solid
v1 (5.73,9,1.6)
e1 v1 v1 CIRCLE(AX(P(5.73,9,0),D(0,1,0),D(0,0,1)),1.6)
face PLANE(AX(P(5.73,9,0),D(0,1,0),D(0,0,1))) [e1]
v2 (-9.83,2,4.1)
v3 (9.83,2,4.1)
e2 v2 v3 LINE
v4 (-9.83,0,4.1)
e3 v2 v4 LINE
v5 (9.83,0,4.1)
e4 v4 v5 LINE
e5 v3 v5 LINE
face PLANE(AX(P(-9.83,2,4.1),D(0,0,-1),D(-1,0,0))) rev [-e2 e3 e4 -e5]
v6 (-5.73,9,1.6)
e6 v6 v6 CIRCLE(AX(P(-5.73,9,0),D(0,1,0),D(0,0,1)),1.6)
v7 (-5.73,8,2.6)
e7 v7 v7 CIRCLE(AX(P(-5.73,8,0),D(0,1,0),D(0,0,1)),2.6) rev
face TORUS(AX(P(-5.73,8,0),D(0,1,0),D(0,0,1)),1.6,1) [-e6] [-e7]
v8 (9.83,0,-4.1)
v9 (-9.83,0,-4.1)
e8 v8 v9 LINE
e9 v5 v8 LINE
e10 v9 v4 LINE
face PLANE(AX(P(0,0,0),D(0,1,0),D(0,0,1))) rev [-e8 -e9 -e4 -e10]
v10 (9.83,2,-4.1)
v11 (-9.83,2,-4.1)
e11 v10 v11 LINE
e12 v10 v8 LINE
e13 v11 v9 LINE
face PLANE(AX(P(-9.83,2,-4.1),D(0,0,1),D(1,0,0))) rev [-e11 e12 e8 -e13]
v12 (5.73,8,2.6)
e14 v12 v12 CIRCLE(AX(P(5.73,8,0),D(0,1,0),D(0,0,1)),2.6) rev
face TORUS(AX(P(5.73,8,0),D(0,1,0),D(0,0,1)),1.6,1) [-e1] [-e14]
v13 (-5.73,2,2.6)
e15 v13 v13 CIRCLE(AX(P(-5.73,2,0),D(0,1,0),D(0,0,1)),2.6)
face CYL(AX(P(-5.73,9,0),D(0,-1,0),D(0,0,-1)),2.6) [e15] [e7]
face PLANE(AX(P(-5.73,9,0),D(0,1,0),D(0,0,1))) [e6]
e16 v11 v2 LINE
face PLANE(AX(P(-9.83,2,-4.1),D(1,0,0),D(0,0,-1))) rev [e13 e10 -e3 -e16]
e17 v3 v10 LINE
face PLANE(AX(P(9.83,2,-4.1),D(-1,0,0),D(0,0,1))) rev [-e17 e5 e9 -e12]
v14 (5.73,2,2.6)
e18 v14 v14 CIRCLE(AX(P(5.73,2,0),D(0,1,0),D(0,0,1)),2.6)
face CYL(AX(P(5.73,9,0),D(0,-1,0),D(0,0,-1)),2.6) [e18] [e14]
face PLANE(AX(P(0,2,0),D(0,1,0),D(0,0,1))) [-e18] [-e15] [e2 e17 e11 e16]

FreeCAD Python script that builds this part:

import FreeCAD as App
import Part
import Sketcher
from FreeCAD import Vector
Q = App.Units.Quantity


def edges_at(feature, points):
    """Names of the edges that pass closest to the given points."""
    edges = feature.Shape.Edges
    near = lambda p: min(range(len(edges)), key=lambda i: edges[i].distToShape(Part.Vertex(*p))[0])
    return sorted({f"Edge{near(p) + 1}" for p in points})

doc = App.newDocument("Part")
body = doc.addObject("PartDesign::Body", "Body")

# Sketch on XZ plane
sketch1 = body.newObject("Sketcher::SketchObject", "Sketch")
sketch1.AttachmentSupport = (doc.getObject("XZ_Plane"), [""])
sketch1.MapMode = "FlatFace"
sketch1.addGeometry([
    Part.LineSegment(Vector(-10, -4, 0), Vector(-10, 4, 0)),
    Part.LineSegment(Vector(-10, 4, 0), Vector(10, 4, 0)),
    Part.LineSegment(Vector(10, 4, 0), Vector(10, -4, 0)),
    Part.LineSegment(Vector(10, -4, 0), Vector(-10, -4, 0)),
], False)
sketch1.addConstraint([
    Sketcher.Constraint("Coincident", 0, 2, 1, 1),
    Sketcher.Constraint("Coincident", 1, 2, 2, 1),
    Sketcher.Constraint("Coincident", 2, 2, 3, 1),
    Sketcher.Constraint("Coincident", 3, 2, 0, 1),
    Sketcher.Constraint("Vertical", 0),
    Sketcher.Constraint("Horizontal", 1),
    Sketcher.Constraint("Vertical", 2),
    Sketcher.Constraint("Horizontal", 3),
    Sketcher.Constraint("Symmetric", 0, 2, 2, 2, -1, 1),
    Sketcher.Constraint("DistanceY", 0, 1, 0, 2, Q("8.2 mm")),
    Sketcher.Constraint("DistanceX", 1, 1, 1, 2, Q("19.66 mm")),
])
pad1 = body.newObject("PartDesign::Pad", "Pad")
pad1.Profile = sketch1
pad1.Length = 2
pad1.Reversed = True

# Sketch on XZ plane
sketch2 = body.newObject("Sketcher::SketchObject", "Sketch001")
sketch2.AttachmentSupport = (doc.getObject("XZ_Plane"), [""])
sketch2.MapMode = "FlatFace"
sketch2.AttachmentOffset = App.Placement(Vector(0, 0, -2), App.Rotation())
sketch2.addGeometry([
    Part.Circle(Vector(-5.7, 0, 0), Vector(0, 0, 1), 2.6),
    Part.Circle(Vector(5.7, 0, 0), Vector(0, 0, 1), 2.6),
], False)
sketch2.addConstraint([
    Sketcher.Constraint("Equal", 0, 1),
    Sketcher.Constraint("Symmetric", 0, 3, 1, 3, -1, 1),
    Sketcher.Constraint("PointOnObject", 0, 3, -1),
    Sketcher.Constraint("Diameter", 0, Q("5.2 mm")),
    Sketcher.Constraint("DistanceX", 0, 3, -1, 1, Q("5.73 mm")),
])
pad2 = body.newObject("PartDesign::Pad", "Pad001")
pad2.Profile = sketch2
pad2.Length = 7
pad2.Reversed = True
doc.recompute()

fillet = body.newObject("PartDesign::Fillet", "Fillet")
fillet.Base = (pad2, edges_at(pad2, [(-8.33, 9, 0), (3.13, 9, 0)]))
fillet.Radius = 1

doc.recompute()
